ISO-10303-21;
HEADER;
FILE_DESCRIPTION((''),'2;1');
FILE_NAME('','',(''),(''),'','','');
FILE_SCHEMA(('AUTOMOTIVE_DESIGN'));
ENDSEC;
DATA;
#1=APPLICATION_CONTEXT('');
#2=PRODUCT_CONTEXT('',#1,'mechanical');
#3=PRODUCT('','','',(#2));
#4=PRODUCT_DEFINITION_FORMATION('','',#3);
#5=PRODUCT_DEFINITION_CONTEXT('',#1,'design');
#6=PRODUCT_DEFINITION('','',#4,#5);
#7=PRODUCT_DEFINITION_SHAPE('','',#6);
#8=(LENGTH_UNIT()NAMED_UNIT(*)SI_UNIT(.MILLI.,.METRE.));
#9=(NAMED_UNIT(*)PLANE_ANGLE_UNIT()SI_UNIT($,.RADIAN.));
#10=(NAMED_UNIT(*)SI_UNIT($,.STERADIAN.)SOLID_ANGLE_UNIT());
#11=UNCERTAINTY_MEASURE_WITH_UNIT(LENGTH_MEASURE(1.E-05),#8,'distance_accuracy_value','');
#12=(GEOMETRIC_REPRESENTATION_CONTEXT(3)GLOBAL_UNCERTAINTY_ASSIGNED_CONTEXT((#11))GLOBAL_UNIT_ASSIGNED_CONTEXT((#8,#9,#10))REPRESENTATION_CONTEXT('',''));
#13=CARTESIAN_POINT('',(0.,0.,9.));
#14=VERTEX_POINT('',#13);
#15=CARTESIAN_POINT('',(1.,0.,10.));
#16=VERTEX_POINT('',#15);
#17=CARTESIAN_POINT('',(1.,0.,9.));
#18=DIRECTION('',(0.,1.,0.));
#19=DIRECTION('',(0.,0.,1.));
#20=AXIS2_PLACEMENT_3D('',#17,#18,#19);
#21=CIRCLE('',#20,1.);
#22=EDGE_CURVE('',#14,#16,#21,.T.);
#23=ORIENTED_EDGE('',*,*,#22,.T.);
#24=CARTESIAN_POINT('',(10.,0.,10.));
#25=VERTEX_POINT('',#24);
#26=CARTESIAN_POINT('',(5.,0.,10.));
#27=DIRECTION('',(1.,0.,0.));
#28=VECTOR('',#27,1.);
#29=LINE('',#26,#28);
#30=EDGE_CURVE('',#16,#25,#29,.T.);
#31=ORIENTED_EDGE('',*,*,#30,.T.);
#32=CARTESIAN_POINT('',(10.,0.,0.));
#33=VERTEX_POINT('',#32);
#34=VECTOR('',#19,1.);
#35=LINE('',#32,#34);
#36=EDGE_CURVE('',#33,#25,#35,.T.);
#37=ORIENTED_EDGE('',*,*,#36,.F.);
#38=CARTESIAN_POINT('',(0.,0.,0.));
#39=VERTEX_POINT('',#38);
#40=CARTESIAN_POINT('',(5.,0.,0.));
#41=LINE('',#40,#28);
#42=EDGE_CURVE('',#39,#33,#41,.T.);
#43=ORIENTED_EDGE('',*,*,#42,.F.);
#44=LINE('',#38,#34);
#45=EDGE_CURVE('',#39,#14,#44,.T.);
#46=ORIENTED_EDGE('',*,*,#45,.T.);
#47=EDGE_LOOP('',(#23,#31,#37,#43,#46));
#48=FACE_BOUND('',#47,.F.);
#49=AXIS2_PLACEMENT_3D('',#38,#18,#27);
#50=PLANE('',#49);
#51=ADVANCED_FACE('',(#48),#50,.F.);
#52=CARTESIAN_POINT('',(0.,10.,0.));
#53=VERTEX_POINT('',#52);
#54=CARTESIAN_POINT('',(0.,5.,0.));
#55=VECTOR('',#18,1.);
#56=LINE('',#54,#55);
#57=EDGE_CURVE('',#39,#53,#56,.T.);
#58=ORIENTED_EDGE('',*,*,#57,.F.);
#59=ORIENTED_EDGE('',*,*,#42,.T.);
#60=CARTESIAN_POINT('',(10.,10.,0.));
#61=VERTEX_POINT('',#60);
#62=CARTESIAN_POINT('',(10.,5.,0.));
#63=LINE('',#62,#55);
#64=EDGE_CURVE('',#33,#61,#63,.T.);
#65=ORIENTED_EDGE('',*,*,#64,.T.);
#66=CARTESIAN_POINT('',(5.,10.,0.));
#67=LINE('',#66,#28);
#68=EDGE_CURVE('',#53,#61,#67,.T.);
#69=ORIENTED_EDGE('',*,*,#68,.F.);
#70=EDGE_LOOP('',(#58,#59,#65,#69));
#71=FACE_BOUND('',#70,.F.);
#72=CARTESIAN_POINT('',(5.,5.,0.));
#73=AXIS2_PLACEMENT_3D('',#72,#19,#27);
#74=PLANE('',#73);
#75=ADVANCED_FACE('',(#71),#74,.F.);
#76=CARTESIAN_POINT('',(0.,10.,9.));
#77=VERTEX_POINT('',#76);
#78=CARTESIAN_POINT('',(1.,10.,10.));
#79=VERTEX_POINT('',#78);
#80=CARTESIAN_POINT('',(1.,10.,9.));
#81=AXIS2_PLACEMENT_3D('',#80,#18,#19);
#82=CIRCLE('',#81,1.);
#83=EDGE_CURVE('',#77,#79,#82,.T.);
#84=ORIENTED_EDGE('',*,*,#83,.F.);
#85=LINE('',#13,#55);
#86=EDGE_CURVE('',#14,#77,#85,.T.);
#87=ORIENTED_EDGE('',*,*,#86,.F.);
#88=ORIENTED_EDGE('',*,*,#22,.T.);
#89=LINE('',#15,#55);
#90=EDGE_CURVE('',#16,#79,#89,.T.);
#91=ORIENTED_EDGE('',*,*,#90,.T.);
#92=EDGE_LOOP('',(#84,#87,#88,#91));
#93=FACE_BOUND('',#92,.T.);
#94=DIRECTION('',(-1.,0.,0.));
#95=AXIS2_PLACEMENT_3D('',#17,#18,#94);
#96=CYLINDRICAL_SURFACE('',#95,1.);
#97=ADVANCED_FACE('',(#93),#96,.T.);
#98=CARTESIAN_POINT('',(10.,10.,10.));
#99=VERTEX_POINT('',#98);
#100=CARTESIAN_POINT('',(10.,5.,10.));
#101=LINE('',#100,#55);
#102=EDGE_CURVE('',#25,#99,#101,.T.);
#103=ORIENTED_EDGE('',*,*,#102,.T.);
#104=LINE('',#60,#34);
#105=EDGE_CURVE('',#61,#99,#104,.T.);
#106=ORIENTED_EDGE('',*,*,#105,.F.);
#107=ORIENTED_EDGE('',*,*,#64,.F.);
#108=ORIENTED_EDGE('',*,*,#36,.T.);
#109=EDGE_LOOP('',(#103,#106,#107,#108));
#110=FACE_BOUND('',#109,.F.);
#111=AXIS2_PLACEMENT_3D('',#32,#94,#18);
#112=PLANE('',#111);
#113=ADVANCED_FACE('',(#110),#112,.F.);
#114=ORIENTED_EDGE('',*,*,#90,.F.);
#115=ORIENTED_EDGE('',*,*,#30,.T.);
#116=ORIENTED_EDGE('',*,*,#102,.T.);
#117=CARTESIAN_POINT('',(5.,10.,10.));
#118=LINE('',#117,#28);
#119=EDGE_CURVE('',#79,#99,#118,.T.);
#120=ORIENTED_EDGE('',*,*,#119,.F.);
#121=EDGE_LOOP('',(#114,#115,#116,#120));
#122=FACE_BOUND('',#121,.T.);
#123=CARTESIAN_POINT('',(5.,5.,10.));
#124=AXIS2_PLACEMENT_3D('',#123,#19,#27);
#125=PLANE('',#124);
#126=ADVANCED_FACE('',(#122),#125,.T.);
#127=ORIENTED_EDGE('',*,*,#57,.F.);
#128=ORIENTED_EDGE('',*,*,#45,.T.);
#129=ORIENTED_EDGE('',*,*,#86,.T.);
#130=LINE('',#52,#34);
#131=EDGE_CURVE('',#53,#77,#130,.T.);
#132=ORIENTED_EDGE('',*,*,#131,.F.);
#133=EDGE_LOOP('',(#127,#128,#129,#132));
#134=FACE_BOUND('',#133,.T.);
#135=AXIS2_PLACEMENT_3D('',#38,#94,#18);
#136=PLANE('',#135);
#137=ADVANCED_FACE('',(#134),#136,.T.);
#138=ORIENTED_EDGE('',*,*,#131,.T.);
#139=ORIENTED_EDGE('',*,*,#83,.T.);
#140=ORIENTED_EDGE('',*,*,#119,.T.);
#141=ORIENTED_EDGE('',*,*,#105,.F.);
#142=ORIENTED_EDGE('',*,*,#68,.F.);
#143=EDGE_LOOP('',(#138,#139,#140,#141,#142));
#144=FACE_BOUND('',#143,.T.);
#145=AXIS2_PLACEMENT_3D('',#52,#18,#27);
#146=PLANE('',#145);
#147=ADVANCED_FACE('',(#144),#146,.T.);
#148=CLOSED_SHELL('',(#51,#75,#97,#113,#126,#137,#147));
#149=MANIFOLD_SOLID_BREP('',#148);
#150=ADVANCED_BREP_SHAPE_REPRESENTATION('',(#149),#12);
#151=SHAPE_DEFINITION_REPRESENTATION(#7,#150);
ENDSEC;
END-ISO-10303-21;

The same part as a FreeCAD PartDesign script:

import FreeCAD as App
import Part
import Sketcher
from FreeCAD import Vector


def edges_at(feature, points):
    """Names of the edges that pass closest to the given points."""
    edges = feature.Shape.Edges
    near = lambda p: min(range(len(edges)), key=lambda i: edges[i].distToShape(Part.Vertex(*p))[0])
    return sorted({f"Edge{near(p) + 1}" for p in points})


def add_polygon(sketch, points):
    """Adds a closed chain of lines whose ends are joined by coincident constraints."""
    first, n = sketch.GeometryCount, len(points)
    for a, b in zip(points, points[1:] + points[:1]):
        sketch.addGeometry(Part.LineSegment(App.Vector(*a, 0), App.Vector(*b, 0)), False)
    for i in range(n):
        sketch.addConstraint(Sketcher.Constraint("Coincident", first + i, 2, first + (i + 1) % n, 1))

doc = App.newDocument("Part")
body = doc.addObject("PartDesign::Body", "Body")

# Sketch on XY plane
sketch1 = doc.addObject("Sketcher::SketchObject", "Sketch")
body.addObject(sketch1)
sketch1.AttachmentSupport = (doc.XY_Plane, [""])
sketch1.MapMode = "FlatFace"
add_polygon(sketch1, [(0, 10), (0, 0), (10, 0), (10, 10)])  # lines 0-3
sketch1.addConstraint([
    Sketcher.Constraint("Vertical", 0),
    Sketcher.Constraint("Horizontal", 1),
    Sketcher.Constraint("Vertical", 2),
    Sketcher.Constraint("Horizontal", 3),
    Sketcher.Constraint("Coincident", 0, 2, -1, 1),
    Sketcher.Constraint("Equal", 3, 0),
    Sketcher.Constraint("DistanceX", 1, 1, 1, 2, 10.0),
])
pad1 = doc.addObject("PartDesign::Pad", "Pad")
body.addObject(pad1)
pad1.Profile = sketch1
pad1.Length = 10
doc.recompute()

fillet = doc.addObject("PartDesign::Fillet", "Fillet")
body.addObject(fillet)
fillet.Base = (pad1, edges_at(pad1, [(0, 5, 10)]))
fillet.Radius = 1

doc.recompute()
